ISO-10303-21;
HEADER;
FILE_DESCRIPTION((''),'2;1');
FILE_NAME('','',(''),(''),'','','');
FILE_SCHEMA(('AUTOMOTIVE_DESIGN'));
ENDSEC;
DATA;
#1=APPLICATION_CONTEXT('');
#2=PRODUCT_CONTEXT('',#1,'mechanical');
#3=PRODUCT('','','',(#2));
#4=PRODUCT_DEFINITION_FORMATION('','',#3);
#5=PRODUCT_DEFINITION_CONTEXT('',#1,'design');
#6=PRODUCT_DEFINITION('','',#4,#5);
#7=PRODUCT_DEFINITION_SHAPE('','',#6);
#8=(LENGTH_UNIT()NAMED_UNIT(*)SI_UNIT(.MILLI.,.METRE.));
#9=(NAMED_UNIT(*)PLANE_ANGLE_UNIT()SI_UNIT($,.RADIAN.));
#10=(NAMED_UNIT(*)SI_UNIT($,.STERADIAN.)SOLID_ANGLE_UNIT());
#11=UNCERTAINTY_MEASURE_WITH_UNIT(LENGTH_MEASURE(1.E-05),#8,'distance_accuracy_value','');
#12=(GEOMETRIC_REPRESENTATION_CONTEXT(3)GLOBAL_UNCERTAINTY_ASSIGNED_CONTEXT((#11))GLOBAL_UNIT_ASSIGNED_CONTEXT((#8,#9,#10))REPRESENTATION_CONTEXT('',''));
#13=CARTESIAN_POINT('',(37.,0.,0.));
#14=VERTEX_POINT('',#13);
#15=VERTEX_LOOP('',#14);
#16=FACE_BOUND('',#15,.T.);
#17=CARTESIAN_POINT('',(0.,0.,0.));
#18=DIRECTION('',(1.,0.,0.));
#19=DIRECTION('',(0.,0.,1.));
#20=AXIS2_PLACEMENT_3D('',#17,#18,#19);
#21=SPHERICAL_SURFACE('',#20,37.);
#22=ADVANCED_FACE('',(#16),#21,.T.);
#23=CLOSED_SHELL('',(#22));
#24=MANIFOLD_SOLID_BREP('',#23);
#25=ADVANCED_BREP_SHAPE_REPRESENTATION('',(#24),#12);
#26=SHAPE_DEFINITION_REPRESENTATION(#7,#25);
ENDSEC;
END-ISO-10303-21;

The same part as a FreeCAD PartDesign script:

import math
import FreeCAD as App
import Part
import Sketcher
from FreeCAD import Vector
Q = App.Units.Quantity

doc = App.newDocument("Part")
body = doc.addObject("PartDesign::Body", "Body")

# Sketch on XZ plane
sketch1 = doc.addObject("Sketcher::SketchObject", "Sketch")
body.addObject(sketch1)
sketch1.AttachmentSupport = (doc.XZ_Plane, [""])
sketch1.MapMode = "FlatFace"
sketch1.addGeometry(Part.LineSegment(Vector(37, 0, 0), Vector(-37, 0, 0)), False)
sketch1.addGeometry(Part.ArcOfCircle(Part.Circle(Vector(0, 0, 0), Vector(0, 0, 1), 37), math.radians(0), math.radians(180)), False)
sketch1.addConstraint(Sketcher.Constraint("Coincident", 0, 1, 1, 1))
sketch1.addConstraint(Sketcher.Constraint("Coincident", 1, 2, 0, 2))
sketch1.addConstraint(Sketcher.Constraint("Horizontal", 0))
sketch1.addConstraint(Sketcher.Constraint("Coincident", 1, 3, -1, 1))
sketch1.addConstraint(Sketcher.Constraint("PointOnObject", 0, 1, -1))
sketch1.addConstraint(Sketcher.Constraint("Radius", 1, Q("37 mm")))
revolution = doc.addObject("PartDesign::Revolution", "Revolution")
body.addObject(revolution)
revolution.Profile = sketch1
revolution.ReferenceAxis = (sketch1, ["H_Axis"])
revolution.Angle = 360

doc.recompute()
